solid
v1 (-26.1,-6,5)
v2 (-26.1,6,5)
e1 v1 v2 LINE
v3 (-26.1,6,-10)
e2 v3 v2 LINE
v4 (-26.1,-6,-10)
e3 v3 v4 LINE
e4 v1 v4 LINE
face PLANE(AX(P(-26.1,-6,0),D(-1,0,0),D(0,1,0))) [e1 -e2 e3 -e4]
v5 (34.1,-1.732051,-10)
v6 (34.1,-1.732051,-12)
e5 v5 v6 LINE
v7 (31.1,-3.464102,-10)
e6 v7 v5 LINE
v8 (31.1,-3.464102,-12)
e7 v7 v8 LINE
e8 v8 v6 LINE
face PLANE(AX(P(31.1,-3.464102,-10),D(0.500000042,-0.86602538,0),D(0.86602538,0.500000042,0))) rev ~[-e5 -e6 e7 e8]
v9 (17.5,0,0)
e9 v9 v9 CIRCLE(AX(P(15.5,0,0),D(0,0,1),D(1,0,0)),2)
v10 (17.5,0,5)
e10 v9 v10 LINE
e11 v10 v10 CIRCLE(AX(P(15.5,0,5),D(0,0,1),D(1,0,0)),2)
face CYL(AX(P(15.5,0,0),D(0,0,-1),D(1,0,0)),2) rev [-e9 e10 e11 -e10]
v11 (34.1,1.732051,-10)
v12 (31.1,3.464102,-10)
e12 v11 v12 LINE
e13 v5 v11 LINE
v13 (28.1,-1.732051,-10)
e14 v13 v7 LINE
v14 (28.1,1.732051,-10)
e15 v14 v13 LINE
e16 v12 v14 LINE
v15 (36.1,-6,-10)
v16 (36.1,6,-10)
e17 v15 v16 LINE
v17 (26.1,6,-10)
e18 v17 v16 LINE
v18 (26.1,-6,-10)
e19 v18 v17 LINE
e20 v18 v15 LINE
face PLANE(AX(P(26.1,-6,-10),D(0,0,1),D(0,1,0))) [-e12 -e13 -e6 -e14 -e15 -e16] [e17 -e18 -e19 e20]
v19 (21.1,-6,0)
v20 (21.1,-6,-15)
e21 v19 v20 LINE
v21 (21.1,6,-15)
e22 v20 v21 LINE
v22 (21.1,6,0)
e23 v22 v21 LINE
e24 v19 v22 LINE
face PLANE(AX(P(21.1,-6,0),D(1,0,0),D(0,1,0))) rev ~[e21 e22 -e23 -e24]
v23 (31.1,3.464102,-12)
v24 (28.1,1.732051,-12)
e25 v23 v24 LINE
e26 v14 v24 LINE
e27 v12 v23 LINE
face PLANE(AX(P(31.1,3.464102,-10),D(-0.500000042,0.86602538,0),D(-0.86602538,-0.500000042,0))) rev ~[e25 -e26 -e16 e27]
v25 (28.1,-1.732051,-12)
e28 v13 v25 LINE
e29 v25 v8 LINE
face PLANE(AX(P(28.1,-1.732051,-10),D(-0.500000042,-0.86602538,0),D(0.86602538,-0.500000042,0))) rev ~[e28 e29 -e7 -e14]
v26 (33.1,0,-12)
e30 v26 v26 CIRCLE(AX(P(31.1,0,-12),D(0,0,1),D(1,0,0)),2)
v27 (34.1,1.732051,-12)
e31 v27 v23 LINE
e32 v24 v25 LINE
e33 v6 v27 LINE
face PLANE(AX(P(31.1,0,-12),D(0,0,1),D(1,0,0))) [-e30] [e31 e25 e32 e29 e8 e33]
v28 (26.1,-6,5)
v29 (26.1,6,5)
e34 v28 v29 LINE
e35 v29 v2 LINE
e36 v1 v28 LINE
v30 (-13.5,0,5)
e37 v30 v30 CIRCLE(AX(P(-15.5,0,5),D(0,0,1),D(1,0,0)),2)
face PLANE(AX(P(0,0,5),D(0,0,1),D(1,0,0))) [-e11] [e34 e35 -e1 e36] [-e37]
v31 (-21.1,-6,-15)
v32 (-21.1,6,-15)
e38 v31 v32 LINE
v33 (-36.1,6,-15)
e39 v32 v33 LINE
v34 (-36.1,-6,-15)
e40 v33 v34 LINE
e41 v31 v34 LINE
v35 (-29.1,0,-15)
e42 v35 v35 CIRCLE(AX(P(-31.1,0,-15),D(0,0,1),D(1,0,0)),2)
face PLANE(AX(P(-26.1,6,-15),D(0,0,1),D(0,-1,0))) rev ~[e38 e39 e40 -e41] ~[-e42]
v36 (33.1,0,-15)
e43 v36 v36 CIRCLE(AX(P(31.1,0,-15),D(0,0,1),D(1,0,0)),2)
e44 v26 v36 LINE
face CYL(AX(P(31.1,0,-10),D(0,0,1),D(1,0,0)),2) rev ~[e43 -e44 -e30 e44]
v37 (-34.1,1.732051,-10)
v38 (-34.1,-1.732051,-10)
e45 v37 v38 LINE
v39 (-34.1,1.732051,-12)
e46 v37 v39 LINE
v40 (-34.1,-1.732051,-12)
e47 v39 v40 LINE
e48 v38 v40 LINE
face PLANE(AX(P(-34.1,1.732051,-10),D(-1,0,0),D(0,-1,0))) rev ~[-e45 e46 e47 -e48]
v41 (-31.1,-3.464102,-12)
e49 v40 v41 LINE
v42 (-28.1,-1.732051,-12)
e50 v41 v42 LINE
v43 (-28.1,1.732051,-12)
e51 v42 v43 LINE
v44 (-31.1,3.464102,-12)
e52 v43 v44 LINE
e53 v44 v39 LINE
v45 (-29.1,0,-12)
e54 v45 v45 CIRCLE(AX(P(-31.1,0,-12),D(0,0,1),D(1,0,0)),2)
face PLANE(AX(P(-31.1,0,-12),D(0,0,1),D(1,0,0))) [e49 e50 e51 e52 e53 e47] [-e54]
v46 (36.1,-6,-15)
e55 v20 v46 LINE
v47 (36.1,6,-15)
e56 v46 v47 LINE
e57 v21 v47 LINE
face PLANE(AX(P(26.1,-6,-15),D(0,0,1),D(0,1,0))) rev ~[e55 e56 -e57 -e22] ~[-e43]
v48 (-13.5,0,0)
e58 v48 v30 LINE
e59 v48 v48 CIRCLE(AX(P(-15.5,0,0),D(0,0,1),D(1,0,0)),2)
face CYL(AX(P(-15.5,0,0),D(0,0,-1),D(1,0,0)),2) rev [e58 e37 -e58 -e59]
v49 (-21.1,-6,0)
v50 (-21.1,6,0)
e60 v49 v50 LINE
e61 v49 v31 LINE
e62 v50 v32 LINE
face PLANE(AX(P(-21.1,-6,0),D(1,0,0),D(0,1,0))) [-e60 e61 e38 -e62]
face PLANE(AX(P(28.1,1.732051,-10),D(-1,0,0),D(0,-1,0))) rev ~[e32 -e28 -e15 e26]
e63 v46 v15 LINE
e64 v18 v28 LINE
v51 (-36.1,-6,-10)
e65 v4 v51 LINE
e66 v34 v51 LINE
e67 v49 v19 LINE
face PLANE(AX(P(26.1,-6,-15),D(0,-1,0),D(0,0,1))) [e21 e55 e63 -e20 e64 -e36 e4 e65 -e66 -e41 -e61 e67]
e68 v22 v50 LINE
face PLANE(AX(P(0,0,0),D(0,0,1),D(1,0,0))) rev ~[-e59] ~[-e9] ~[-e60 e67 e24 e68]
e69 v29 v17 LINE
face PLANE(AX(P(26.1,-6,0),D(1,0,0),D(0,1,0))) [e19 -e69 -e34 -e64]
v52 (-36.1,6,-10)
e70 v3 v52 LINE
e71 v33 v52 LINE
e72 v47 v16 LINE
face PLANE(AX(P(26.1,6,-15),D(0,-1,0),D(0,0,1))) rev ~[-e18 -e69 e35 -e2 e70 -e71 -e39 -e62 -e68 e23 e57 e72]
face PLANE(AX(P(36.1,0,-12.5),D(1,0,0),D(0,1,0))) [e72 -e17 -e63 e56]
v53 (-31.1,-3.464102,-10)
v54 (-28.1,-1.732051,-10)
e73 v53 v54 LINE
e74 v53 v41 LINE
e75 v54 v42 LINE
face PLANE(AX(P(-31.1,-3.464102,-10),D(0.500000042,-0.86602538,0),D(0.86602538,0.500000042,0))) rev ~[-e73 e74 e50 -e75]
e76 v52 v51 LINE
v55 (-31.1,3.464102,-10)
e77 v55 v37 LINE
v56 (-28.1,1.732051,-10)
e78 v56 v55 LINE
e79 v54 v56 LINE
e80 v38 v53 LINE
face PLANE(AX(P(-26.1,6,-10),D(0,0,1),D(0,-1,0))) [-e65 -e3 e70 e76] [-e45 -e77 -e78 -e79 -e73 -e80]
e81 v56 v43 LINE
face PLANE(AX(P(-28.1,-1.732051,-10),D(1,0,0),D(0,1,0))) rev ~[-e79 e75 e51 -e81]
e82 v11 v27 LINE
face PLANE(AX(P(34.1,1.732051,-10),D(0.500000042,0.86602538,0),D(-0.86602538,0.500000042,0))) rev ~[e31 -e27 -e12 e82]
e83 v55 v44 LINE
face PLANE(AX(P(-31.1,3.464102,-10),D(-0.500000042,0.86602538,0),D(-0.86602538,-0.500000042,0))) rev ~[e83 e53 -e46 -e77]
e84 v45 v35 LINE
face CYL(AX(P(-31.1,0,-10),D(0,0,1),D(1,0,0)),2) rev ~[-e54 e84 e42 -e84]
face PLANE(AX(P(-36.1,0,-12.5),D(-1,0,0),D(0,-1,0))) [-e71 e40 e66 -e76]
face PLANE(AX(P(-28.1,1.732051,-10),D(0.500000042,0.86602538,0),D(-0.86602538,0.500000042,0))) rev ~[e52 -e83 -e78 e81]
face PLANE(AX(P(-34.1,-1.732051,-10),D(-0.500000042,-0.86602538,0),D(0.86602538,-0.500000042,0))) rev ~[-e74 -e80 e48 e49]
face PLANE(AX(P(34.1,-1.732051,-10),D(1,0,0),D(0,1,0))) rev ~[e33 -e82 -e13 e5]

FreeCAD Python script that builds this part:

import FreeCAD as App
import Part
import Sketcher
Q = App.Units.Quantity

doc = App.newDocument("Part")
body = doc.addObject("PartDesign::Body", "Body")

# Sketch on XY plane
sketch1 = body.newObject("Sketcher::SketchObject", "Sketch")
sketch1.AttachmentSupport = (doc.getObject("XY_Plane"), [""])
sketch1.MapMode = "FlatFace"
sketch1.addGeometry([
    Part.LineSegment(App.Vector(26.1, -6, 0), App.Vector(26.1, 6, 0)),  # 0
    Part.LineSegment(App.Vector(26.1, 6, 0), App.Vector(-26.1, 6, 0)),  # 1
    Part.LineSegment(App.Vector(-26.1, 6, 0), App.Vector(-26.1, -6, 0)),  # 2
    Part.LineSegment(App.Vector(-26.1, -6, 0), App.Vector(26.1, -6, 0)),  # 3
    Part.Circle(App.Vector(-15.5, 0, 0), App.Vector(0, 0, 1), 2),  # 4
    Part.Circle(App.Vector(15.5, 0, 0), App.Vector(0, 0, 1), 2),  # 5
], False)
sketch1.addConstraint([
    Sketcher.Constraint("Coincident", 0, 2, 1, 1),
    Sketcher.Constraint("Coincident", 1, 2, 2, 1),
    Sketcher.Constraint("Coincident", 2, 2, 3, 1),
    Sketcher.Constraint("Coincident", 3, 2, 0, 1),
    Sketcher.Constraint("Vertical", 0),
    Sketcher.Constraint("Horizontal", 1),
    Sketcher.Constraint("Vertical", 2),
    Sketcher.Constraint("Horizontal", 3),
    Sketcher.Constraint("Equal", 4, 5),
    Sketcher.Constraint("Symmetric", 4, 3, 5, 3, -1, 1),
    Sketcher.Constraint("Symmetric", 0, 2, 2, 2, -1, 1),
    Sketcher.Constraint("PointOnObject", 4, 3, -1),
    Sketcher.Constraint("Diameter", 4, 4.0),
    Sketcher.Constraint("DistanceY", 0, 1, 0, 2, 12.0),
    Sketcher.Constraint("DistanceX", 1, 2, 1, 1, 52.2),
    Sketcher.Constraint("DistanceX", 4, 3, 5, 3, 31.0),
])
pad1 = body.newObject("PartDesign::Pad", "Pad")
pad1.Profile = sketch1
pad1.Length = 5

# Sketch on XY plane
sketch2 = body.newObject("Sketcher::SketchObject", "Sketch001")
sketch2.AttachmentSupport = (doc.getObject("XY_Plane"), [""])
sketch2.MapMode = "FlatFace"
sketch2.addGeometry([
    Part.LineSegment(App.Vector(21, 6, 0), App.Vector(21, -6, 0)),  # 0
    Part.LineSegment(App.Vector(21, -6, 0), App.Vector(26, -6, 0)),  # 1
    Part.LineSegment(App.Vector(26, -6, 0), App.Vector(26, 6, 0)),  # 2
    Part.LineSegment(App.Vector(26, 6, 0), App.Vector(21, 6, 0)),  # 3
    Part.LineSegment(App.Vector(-26, 6, 0), App.Vector(-26, -6, 0)),  # 4
    Part.LineSegment(App.Vector(-26, -6, 0), App.Vector(-21, -6, 0)),  # 5
    Part.LineSegment(App.Vector(-21, -6, 0), App.Vector(-21, 6, 0)),  # 6
    Part.LineSegment(App.Vector(-21, 6, 0), App.Vector(-26, 6, 0)),  # 7
], False)
sketch2.addConstraint([
    Sketcher.Constraint("Coincident", 0, 2, 1, 1),
    Sketcher.Constraint("Coincident", 1, 2, 2, 1),
    Sketcher.Constraint("Coincident", 2, 2, 3, 1),
    Sketcher.Constraint("Coincident", 3, 2, 0, 1),
    Sketcher.Constraint("Coincident", 4, 2, 5, 1),
    Sketcher.Constraint("Coincident", 5, 2, 6, 1),
    Sketcher.Constraint("Coincident", 6, 2, 7, 1),
    Sketcher.Constraint("Coincident", 7, 2, 4, 1),
    Sketcher.Constraint("Vertical", 0),
    Sketcher.Constraint("Horizontal", 1),
    Sketcher.Constraint("Vertical", 2),
    Sketcher.Constraint("Horizontal", 3),
    Sketcher.Constraint("Vertical", 4),
    Sketcher.Constraint("Horizontal", 5),
    Sketcher.Constraint("Vertical", 6),
    Sketcher.Constraint("Horizontal", 7),
    Sketcher.Constraint("Symmetric", 2, 2, 4, 2, -1, 1),
    Sketcher.Constraint("Symmetric", 0, 2, 6, 2, -1, 1),
    Sketcher.Constraint("Horizontal", 1, 2, 4, 2),
    Sketcher.Constraint("DistanceX", 1, 1, 1, 2, 5.0),
    Sketcher.Constraint("DistanceY", 0, 2, 0, 1, 12.0),
    Sketcher.Constraint("DistanceX", -1, 1, 0, 2, 21.1),
])
pad2 = body.newObject("PartDesign::Pad", "Pad001")
pad2.Profile = sketch2
pad2.Length = 15
pad2.Reversed = True

# Sketch on YZ plane
sketch3 = body.newObject("Sketcher::SketchObject", "Sketch002")
sketch3.AttachmentSupport = (doc.getObject("YZ_Plane"), [""])
sketch3.MapMode = "FlatFace"
sketch3.AttachmentOffset = App.Placement(App.Vector(0, 0, -26.1), App.Rotation())
sketch3.addGeometry([
    Part.LineSegment(App.Vector(6, -10, 0), App.Vector(6, -15, 0)),
    Part.LineSegment(App.Vector(6, -15, 0), App.Vector(-6, -15, 0)),
    Part.LineSegment(App.Vector(-6, -15, 0), App.Vector(-6, -10, 0)),
    Part.LineSegment(App.Vector(-6, -10, 0), App.Vector(6, -10, 0)),
], False)
sketch3.addConstraint([
    Sketcher.Constraint("Coincident", 0, 2, 1, 1),
    Sketcher.Constraint("Coincident", 1, 2, 2, 1),
    Sketcher.Constraint("Coincident", 2, 2, 3, 1),
    Sketcher.Constraint("Coincident", 3, 2, 0, 1),
    Sketcher.Constraint("Vertical", 0),
    Sketcher.Constraint("Horizontal", 1),
    Sketcher.Constraint("Vertical", 2),
    Sketcher.Constraint("Horizontal", 3),
    Sketcher.Constraint("DistanceX", 1, 2, 1, 1, 12.0),
    Sketcher.Constraint("DistanceY", 0, 2, 0, 1, 5.0),
    Sketcher.Constraint("DistanceX", -1, 1, 0, 2, 6.0),
    Sketcher.Constraint("DistanceY", 0, 2, -1, 1, 15.0),
])
pad3 = body.newObject("PartDesign::Pad", "Pad002")
pad3.Profile = sketch3
pad3.Length = 10
pad3.Reversed = True

# Sketch on YZ plane
sketch4 = body.newObject("Sketcher::SketchObject", "Sketch003")
sketch4.AttachmentSupport = (doc.getObject("YZ_Plane"), [""])
sketch4.MapMode = "FlatFace"
sketch4.AttachmentOffset = App.Placement(App.Vector(0, 0, 26.1), App.Rotation())
sketch4.addGeometry([
    Part.LineSegment(App.Vector(-6, -10, 0), App.Vector(-6, -15, 0)),
    Part.LineSegment(App.Vector(-6, -15, 0), App.Vector(6, -15, 0)),
    Part.LineSegment(App.Vector(6, -15, 0), App.Vector(6, -10, 0)),
    Part.LineSegment(App.Vector(6, -10, 0), App.Vector(-6, -10, 0)),
], False)
sketch4.addConstraint([
    Sketcher.Constraint("Coincident", 0, 2, 1, 1),
    Sketcher.Constraint("Coincident", 1, 2, 2, 1),
    Sketcher.Constraint("Coincident", 2, 2, 3, 1),
    Sketcher.Constraint("Coincident", 3, 2, 0, 1),
    Sketcher.Constraint("Vertical", 0),
    Sketcher.Constraint("Horizontal", 1),
    Sketcher.Constraint("Vertical", 2),
    Sketcher.Constraint("Horizontal", 3),
    Sketcher.Constraint("DistanceX", 1, 1, 1, 2, 12.0),
    Sketcher.Constraint("DistanceY", 0, 2, 0, 1, 5.0),
    Sketcher.Constraint("DistanceX", 0, 2, -1, 1, 6.0),
    Sketcher.Constraint("DistanceY", 0, 2, -1, 1, 15.0),
])
pad4 = body.newObject("PartDesign::Pad", "Pad003")
pad4.Profile = sketch4
pad4.Length = 10

# Sketch on XY plane
sketch5 = body.newObject("Sketcher::SketchObject", "Sketch004")
sketch5.AttachmentSupport = (doc.getObject("XY_Plane"), [""])
sketch5.MapMode = "FlatFace"
sketch5.AttachmentOffset = App.Placement(App.Vector(0, 0, -10), App.Rotation())
sketch5.addGeometry([
    Part.Circle(App.Vector(31.1, 0, 0), App.Vector(0, 0, 1), 2),
    Part.Circle(App.Vector(-31.1, 0, 0), App.Vector(0, 0, 1), 2),
], False)
sketch5.addConstraint([
    Sketcher.Constraint("Equal", 0, 1),
    Sketcher.Constraint("Symmetric", 0, 3, 1, 3, -1, 1),
    Sketcher.Constraint("PointOnObject", 0, 3, -1),
    Sketcher.Constraint("Diameter", 0, 4.0),
    Sketcher.Constraint("DistanceX", -1, 1, 0, 3, 31.1),
])
pocket1 = body.newObject("PartDesign::Pocket", "Pocket")
pocket1.Profile = sketch5
pocket1.Length = 5

# Sketch on XY plane
sketch6 = body.newObject("Sketcher::SketchObject", "Sketch005")
sketch6.AttachmentSupport = (doc.getObject("XY_Plane"), [""])
sketch6.MapMode = "FlatFace"
sketch6.AttachmentOffset = App.Placement(App.Vector(0, 0, -10), App.Rotation())
sketch6.addGeometry([
    Part.LineSegment(App.Vector(28.1, 1.7, 0), App.Vector(28.1, -1.7, 0)),  # 0
    Part.LineSegment(App.Vector(28.1, -1.7, 0), App.Vector(31.1, -3.5, 0)),  # 1
    Part.LineSegment(App.Vector(31.1, -3.5, 0), App.Vector(34.1, -1.7, 0)),  # 2
    Part.LineSegment(App.Vector(34.1, -1.7, 0), App.Vector(34.1, 1.7, 0)),  # 3
    Part.LineSegment(App.Vector(34.1, 1.7, 0), App.Vector(31.1, 3.5, 0)),  # 4
    Part.LineSegment(App.Vector(31.1, 3.5, 0), App.Vector(28.1, 1.7, 0)),  # 5
    Part.Circle(App.Vector(31.1, 0, 0), App.Vector(0, 0, 1), 2),  # 6
    Part.LineSegment(App.Vector(-34.1, -1.7, 0), App.Vector(-31.1, -3.5, 0)),  # 7
    Part.LineSegment(App.Vector(-31.1, -3.5, 0), App.Vector(-28.1, -1.7, 0)),  # 8
    Part.LineSegment(App.Vector(-28.1, -1.7, 0), App.Vector(-28.1, 1.7, 0)),  # 9
    Part.LineSegment(App.Vector(-28.1, 1.7, 0), App.Vector(-31.1, 3.5, 0)),  # 10
    Part.LineSegment(App.Vector(-31.1, 3.5, 0), App.Vector(-34.1, 1.7, 0)),  # 11
    Part.LineSegment(App.Vector(-34.1, 1.7, 0), App.Vector(-34.1, -1.7, 0)),  # 12
    Part.Circle(App.Vector(-31.1, 0, 0), App.Vector(0, 0, 1), 2),  # 13
], False)
sketch6.addConstraint([
    Sketcher.Constraint("Coincident", 0, 2, 1, 1),
    Sketcher.Constraint("Coincident", 1, 2, 2, 1),
    Sketcher.Constraint("Coincident", 2, 2, 3, 1),
    Sketcher.Constraint("Coincident", 3, 2, 4, 1),
    Sketcher.Constraint("Coincident", 4, 2, 5, 1),
    Sketcher.Constraint("Coincident", 5, 2, 0, 1),
    Sketcher.Constraint("Coincident", 7, 2, 8, 1),
    Sketcher.Constraint("Coincident", 8, 2, 9, 1),
    Sketcher.Constraint("Coincident", 9, 2, 10, 1),
    Sketcher.Constraint("Coincident", 10, 2, 11, 1),
    Sketcher.Constraint("Coincident", 11, 2, 12, 1),
    Sketcher.Constraint("Coincident", 12, 2, 7, 1),
    Sketcher.Constraint("Vertical", 0),
    Sketcher.Constraint("Vertical", 3),
    Sketcher.Constraint("Vertical", 9),
    Sketcher.Constraint("Vertical", 12),
    Sketcher.Constraint("Equal", 6, 13),
    Sketcher.Constraint("Symmetric", 6, 3, 13, 3, -1, 1),
    Sketcher.Constraint("Symmetric", 4, 2, 7, 2, -1, 1),
    Sketcher.Constraint("Symmetric", 5, 2, 8, 2, -1, 1),
    Sketcher.Constraint("Symmetric", 1, 2, 10, 2, -1, 1),
    Sketcher.Constraint("Symmetric", 2, 2, 11, 2, -1, 1),
    Sketcher.Constraint("Symmetric", 1, 2, 7, 2, -2),
    Sketcher.Constraint("PointOnObject", 6, 3, -1),
    Sketcher.Constraint("Parallel", 1, 4),
    Sketcher.Constraint("Parallel", 2, 5),
    Sketcher.Constraint("Parallel", 4, 7),
    Sketcher.Constraint("Parallel", 7, 10),
    Sketcher.Constraint("Horizontal", 0, 2, 2, 2),
    Sketcher.Constraint("Horizontal", 3, 2, 5, 2),
    Sketcher.Constraint("Vertical", 6, 3, 1, 2),
    Sketcher.Constraint("Diameter", 6, 4.0),
    Sketcher.Constraint("Angle", 1, Q("-30.000003 deg")),
    Sketcher.Constraint("DistanceX", 0, 2, 6, 3, 3.0),
    Sketcher.Constraint("DistanceX", -1, 1, 6, 3, 31.1),
    Sketcher.Constraint("DistanceY", 0, 2, 0, 1, 3.464102),
])
pocket2 = body.newObject("PartDesign::Pocket", "Pocket001")
pocket2.Profile = sketch6
pocket2.Length = 2

doc.recompute()
